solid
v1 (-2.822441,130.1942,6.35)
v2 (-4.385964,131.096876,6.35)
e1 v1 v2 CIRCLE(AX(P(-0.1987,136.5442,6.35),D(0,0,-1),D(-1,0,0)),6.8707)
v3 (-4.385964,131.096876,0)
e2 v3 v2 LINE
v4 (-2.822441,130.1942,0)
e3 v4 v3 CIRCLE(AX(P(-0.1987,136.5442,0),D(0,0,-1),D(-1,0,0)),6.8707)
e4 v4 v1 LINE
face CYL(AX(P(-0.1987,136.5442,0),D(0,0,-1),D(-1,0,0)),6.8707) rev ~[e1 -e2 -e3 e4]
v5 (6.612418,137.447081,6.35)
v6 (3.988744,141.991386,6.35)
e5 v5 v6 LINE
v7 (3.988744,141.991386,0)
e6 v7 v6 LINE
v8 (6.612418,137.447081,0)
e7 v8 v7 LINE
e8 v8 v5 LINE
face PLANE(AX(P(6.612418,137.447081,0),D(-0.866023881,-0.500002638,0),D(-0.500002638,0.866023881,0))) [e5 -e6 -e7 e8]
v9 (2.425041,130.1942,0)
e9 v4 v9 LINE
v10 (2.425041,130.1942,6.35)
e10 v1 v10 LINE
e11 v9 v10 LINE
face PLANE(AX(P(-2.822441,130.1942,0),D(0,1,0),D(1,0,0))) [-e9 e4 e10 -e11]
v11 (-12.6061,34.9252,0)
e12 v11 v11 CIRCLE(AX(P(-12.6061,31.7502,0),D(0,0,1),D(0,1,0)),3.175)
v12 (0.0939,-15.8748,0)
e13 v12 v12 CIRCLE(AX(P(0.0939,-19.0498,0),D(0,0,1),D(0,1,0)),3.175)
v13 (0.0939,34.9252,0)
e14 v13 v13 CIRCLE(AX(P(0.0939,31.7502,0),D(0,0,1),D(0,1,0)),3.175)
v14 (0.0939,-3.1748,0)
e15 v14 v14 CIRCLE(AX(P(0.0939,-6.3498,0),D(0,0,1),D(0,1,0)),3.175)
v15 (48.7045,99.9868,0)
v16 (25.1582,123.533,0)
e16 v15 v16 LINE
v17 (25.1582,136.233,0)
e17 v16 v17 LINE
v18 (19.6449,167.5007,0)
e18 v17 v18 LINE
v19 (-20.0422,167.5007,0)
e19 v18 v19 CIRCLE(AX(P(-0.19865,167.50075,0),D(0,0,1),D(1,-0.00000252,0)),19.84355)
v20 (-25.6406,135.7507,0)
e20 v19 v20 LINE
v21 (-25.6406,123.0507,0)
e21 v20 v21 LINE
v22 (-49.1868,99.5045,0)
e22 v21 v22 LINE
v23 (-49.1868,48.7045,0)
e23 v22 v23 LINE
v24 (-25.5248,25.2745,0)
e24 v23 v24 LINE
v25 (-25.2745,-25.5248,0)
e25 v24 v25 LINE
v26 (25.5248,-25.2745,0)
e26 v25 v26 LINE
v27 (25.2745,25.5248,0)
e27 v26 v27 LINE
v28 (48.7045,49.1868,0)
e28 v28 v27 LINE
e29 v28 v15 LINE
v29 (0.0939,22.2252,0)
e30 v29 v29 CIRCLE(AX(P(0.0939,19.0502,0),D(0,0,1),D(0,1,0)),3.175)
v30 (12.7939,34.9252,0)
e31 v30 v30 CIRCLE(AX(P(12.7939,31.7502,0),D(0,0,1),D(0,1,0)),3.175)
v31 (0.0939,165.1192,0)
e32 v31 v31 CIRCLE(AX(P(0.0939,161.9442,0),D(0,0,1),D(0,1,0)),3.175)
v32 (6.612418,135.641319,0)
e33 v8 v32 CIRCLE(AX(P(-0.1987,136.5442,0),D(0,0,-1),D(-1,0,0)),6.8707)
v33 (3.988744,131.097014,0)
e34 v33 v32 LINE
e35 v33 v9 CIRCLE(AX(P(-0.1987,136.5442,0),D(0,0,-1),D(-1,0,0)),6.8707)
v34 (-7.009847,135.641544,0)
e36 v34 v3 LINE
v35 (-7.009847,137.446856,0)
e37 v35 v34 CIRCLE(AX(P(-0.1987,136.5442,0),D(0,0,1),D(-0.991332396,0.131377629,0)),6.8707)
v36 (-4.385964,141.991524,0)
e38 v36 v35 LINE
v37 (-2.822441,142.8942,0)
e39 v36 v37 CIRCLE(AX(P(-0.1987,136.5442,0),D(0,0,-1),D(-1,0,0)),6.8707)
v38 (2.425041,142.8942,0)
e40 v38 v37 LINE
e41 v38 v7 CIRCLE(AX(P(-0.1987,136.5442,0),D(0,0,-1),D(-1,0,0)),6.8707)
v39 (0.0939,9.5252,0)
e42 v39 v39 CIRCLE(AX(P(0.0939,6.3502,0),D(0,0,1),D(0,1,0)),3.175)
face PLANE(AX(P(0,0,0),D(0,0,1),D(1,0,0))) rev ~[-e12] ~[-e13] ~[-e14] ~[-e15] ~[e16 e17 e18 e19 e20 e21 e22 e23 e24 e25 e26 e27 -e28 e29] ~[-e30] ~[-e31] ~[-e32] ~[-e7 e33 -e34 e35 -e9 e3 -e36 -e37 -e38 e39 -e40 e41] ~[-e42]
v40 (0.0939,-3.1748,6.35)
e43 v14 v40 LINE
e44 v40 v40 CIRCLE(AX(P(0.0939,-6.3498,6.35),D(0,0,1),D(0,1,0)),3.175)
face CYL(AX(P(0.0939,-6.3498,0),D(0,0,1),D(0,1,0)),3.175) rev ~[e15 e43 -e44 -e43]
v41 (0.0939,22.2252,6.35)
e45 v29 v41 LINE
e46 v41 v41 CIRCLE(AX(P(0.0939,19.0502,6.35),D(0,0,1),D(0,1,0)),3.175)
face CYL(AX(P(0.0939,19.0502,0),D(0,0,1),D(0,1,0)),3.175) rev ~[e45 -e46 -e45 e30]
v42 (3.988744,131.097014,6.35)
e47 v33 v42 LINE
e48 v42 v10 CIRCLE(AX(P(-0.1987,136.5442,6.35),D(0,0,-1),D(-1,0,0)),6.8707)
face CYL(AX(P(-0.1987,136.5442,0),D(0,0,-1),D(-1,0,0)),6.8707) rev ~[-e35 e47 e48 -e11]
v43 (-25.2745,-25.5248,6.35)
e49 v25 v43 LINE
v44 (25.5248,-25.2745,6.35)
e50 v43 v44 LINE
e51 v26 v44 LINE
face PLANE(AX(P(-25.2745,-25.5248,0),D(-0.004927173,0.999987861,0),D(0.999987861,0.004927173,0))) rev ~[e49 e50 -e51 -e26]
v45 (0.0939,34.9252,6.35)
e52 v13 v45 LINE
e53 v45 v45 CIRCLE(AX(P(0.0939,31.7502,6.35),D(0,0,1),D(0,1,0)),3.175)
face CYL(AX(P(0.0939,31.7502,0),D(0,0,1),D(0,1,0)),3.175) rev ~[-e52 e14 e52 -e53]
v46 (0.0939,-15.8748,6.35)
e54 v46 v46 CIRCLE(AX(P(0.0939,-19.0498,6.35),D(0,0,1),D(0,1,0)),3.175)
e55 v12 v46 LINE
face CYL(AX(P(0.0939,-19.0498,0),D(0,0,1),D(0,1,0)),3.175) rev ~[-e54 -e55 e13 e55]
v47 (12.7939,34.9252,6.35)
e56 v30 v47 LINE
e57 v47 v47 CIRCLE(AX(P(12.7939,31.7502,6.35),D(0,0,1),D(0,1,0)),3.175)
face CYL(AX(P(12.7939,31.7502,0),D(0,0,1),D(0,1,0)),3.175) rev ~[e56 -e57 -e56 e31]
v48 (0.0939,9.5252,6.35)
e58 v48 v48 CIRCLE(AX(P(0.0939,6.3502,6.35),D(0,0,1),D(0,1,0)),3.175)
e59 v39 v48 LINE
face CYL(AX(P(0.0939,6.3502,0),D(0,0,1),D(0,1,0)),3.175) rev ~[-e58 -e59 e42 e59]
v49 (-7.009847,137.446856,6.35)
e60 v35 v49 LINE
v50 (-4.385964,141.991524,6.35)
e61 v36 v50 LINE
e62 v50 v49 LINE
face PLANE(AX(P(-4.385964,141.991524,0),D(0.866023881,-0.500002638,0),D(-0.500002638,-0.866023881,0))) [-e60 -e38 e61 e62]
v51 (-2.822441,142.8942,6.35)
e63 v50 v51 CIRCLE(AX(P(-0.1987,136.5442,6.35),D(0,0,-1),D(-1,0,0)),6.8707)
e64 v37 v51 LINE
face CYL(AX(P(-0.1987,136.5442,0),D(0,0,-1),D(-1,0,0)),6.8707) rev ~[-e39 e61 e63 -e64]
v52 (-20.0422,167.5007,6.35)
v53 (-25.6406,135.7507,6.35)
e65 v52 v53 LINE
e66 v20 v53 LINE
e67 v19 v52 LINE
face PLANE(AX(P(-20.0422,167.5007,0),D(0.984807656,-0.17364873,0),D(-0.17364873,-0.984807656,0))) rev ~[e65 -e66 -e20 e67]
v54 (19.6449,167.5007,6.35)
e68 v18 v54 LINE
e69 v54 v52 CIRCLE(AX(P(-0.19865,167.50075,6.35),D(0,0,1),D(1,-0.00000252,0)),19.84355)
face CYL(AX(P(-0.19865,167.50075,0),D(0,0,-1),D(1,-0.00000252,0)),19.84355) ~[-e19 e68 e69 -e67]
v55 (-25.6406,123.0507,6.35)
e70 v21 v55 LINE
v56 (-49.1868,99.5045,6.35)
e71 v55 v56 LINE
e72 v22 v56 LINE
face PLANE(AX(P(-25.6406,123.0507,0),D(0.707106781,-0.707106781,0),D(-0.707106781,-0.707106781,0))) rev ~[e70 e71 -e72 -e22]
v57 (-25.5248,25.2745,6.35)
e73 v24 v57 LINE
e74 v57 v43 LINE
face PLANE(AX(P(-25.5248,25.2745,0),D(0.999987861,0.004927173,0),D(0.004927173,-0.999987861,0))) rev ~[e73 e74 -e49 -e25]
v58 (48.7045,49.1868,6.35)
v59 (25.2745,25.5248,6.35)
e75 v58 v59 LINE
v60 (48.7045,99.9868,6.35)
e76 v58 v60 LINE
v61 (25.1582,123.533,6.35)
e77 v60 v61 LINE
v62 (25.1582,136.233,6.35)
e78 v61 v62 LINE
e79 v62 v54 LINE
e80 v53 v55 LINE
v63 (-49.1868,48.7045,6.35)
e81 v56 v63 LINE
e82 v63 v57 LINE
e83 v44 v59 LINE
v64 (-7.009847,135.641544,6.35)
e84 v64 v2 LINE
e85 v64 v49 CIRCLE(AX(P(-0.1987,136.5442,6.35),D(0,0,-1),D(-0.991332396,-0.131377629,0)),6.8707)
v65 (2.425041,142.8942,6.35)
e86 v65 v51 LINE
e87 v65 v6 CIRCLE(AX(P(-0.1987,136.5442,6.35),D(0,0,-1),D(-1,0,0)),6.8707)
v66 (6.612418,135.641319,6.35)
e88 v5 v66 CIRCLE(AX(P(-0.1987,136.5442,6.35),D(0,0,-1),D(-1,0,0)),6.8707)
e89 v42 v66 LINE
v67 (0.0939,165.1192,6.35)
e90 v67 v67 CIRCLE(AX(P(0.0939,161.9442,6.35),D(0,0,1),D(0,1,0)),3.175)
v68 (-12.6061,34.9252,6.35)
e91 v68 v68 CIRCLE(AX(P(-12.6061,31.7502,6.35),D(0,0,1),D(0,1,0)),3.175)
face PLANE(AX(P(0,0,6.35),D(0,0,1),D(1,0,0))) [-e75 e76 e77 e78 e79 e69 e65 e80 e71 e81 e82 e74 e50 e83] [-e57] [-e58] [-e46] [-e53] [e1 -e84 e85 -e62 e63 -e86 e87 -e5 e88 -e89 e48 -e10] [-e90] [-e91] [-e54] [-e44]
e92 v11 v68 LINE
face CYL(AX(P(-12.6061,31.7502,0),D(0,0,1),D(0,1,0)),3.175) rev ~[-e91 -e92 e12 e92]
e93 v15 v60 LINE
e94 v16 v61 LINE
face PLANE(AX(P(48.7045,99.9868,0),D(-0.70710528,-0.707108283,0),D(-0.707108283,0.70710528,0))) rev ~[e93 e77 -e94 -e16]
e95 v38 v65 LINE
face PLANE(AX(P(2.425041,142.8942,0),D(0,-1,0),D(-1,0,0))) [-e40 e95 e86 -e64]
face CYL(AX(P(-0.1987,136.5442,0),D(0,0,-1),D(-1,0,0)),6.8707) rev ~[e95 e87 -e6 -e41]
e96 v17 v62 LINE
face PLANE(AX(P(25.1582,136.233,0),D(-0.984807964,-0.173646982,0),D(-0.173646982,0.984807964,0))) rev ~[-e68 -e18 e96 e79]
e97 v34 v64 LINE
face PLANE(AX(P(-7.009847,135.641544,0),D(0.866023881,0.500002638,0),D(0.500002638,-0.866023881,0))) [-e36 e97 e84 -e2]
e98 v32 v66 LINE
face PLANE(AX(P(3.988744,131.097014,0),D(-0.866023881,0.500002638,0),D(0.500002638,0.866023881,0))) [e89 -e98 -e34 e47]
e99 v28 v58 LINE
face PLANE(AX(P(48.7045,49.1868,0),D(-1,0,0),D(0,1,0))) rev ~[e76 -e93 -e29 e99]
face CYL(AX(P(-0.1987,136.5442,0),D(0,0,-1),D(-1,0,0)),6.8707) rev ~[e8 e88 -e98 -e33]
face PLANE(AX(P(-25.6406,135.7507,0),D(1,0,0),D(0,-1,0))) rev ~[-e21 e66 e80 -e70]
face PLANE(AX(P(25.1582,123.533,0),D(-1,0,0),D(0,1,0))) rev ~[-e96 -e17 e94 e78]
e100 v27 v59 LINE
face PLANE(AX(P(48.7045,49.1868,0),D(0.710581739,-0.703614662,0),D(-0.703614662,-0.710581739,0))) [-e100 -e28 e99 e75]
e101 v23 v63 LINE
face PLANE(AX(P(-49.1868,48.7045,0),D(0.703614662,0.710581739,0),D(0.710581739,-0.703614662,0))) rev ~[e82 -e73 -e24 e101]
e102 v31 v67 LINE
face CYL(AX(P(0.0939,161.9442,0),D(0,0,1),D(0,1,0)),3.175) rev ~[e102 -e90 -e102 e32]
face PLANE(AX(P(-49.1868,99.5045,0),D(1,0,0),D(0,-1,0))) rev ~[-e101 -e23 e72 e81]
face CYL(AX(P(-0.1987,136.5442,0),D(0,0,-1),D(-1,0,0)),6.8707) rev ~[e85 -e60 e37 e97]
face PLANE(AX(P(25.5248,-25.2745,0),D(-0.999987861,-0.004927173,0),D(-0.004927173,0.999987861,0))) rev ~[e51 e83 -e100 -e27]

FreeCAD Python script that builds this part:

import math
import FreeCAD as App
import Part
import Sketcher

V = App.Vector
Q = App.Units.Quantity

doc = App.newDocument("Part")
body = doc.addObject("PartDesign::Body", "Body")

# Sketch on XY plane
sketch1 = body.newObject("Sketcher::SketchObject", "Sketch")
sketch1.AttachmentSupport = (doc.getObject("XY_Plane"), [""])
sketch1.MapMode = "FlatFace"
sketch1.addGeometry([
    Part.LineSegment(V(-26, 25, 0), V(-25, -26, 0)),  # 0
    Part.LineSegment(V(-25, -26, 0), V(26, -25, 0)),  # 1
    Part.LineSegment(V(26, -25, 0), V(25, 26, 0)),  # 2
    Part.LineSegment(V(25, 26, 0), V(49, 49, 0)),  # 3
    Part.LineSegment(V(49, 49, 0), V(49, 100, 0)),  # 4
    Part.LineSegment(V(49, 100, 0), V(25, 124, 0)),  # 5
    Part.LineSegment(V(25, 124, 0), V(25, 136, 0)),  # 6
    Part.LineSegment(V(25, 136, 0), V(20, 168, 0)),  # 7
    Part.ArcOfCircle(Part.Circle(V(0, 168, 0), V(0, 0, 1), 20), math.radians(0), math.radians(180)),  # 8
    Part.LineSegment(V(-20, 168, 0), V(-26, 136, 0)),  # 9
    Part.LineSegment(V(-26, 136, 0), V(-26, 123, 0)),  # 10
    Part.LineSegment(V(-26, 123, 0), V(-49, 100, 0)),  # 11
    Part.LineSegment(V(-49, 100, 0), V(-49, 49, 0)),  # 12
    Part.LineSegment(V(-49, 49, 0), V(-26, 25, 0)),  # 13
], False)
sketch1.addConstraint([
    Sketcher.Constraint("Coincident", 0, 2, 1, 1),
    Sketcher.Constraint("Coincident", 1, 2, 2, 1),
    Sketcher.Constraint("Coincident", 2, 2, 3, 1),
    Sketcher.Constraint("Coincident", 3, 2, 4, 1),
    Sketcher.Constraint("Coincident", 4, 2, 5, 1),
    Sketcher.Constraint("Coincident", 5, 2, 6, 1),
    Sketcher.Constraint("Coincident", 6, 2, 7, 1),
    Sketcher.Constraint("Coincident", 7, 2, 8, 1),
    Sketcher.Constraint("Coincident", 8, 2, 9, 1),
    Sketcher.Constraint("Coincident", 9, 2, 10, 1),
    Sketcher.Constraint("Coincident", 10, 2, 11, 1),
    Sketcher.Constraint("Coincident", 11, 2, 12, 1),
    Sketcher.Constraint("Coincident", 12, 2, 13, 1),
    Sketcher.Constraint("Coincident", 13, 2, 0, 1),
    Sketcher.Constraint("Vertical", 4),
    Sketcher.Constraint("Vertical", 6),
    Sketcher.Constraint("Vertical", 10),
    Sketcher.Constraint("Vertical", 12),
    Sketcher.Constraint("Symmetric", 0, 2, 2, 2, -1, 1),
    Sketcher.Constraint("Symmetric", 1, 2, 13, 2, -1, 1),
    Sketcher.Constraint("Perpendicular", 0, 1),
    Sketcher.Constraint("Perpendicular", 5, 11),
    Sketcher.Constraint("Perpendicular", 3, 13),
    Sketcher.Constraint("Horizontal", 8, 3, 7, 2),
    Sketcher.Constraint("Horizontal", 7, 2, 8, 2),
    Sketcher.Constraint("Equal", 6, 10),
    Sketcher.Constraint("Equal", 4, 12),
    Sketcher.Constraint("Equal", 0, 1),
    Sketcher.Constraint("Equal", 3, 5),
    Sketcher.Constraint("Equal", 5, 11),
    Sketcher.Constraint("Equal", 11, 13),
    Sketcher.Constraint("DistanceY", 4, 1, 4, 2, Q("2 in")),
    Sketcher.Constraint("Distance", 0, Q("2 in")),
    Sketcher.Constraint("DistanceY", 6, 1, 6, 2, Q("0.5 in")),
    Sketcher.Constraint("Angle", 5, Q("135.0001 deg")),
    Sketcher.Constraint("Distance", 7, Q("1.25 in")),
    Sketcher.Constraint("DistanceY", 9, 2, 8, 2, Q("1.25 in")),
    Sketcher.Constraint("Distance", 3, Q("1.311 in")),
    Sketcher.Constraint("Angle", 7, Q("100 deg")),
    Sketcher.Constraint("Angle", 9, Q("-100 deg")),
    Sketcher.Constraint("DistanceY", 2, 2, 8, 3, Q("5.5896 in")),
])
pad1 = body.newObject("PartDesign::Pad", "Pad")
pad1.Profile = sketch1
pad1.Length = Q("0.25 in")

# Sketch on XY plane
sketch2 = body.newObject("Sketcher::SketchObject", "Sketch001")
sketch2.AttachmentSupport = (doc.getObject("XY_Plane"), [""])
sketch2.MapMode = "FlatFace"
sketch2.addGeometry([
    Part.Circle(V(0.1, -19, 0), V(0, 0, 1), 3.2),  # 0
    Part.Circle(V(0.1, -6.3, 0), V(0, 0, 1), 3.2),  # 1
    Part.Circle(V(0.1, 6.4, 0), V(0, 0, 1), 3.2),  # 2
    Part.Circle(V(0.1, 19.1, 0), V(0, 0, 1), 3.2),  # 3
    Part.Circle(V(0.1, 31.8, 0), V(0, 0, 1), 3.2),  # 4
    Part.Circle(V(-12.6, 31.8, 0), V(0, 0, 1), 3.2),  # 5
    Part.Circle(V(12.8, 31.8, 0), V(0, 0, 1), 3.2),  # 6
    Part.Circle(V(0.1, 161.9, 0), V(0, 0, 1), 3.2),  # 7
], False)
sketch2.addConstraint([
    Sketcher.Constraint("Equal", 0, 1),
    Sketcher.Constraint("Equal", 1, 2),
    Sketcher.Constraint("Equal", 2, 3),
    Sketcher.Constraint("Equal", 3, 4),
    Sketcher.Constraint("Equal", 4, 5),
    Sketcher.Constraint("Equal", 5, 6),
    Sketcher.Constraint("Equal", 6, 7),
    Sketcher.Constraint("Symmetric", 1, 3, 2, 3, -1),
    Sketcher.Constraint("Symmetric", 0, 3, 3, 3, -1),
    Sketcher.Constraint("Horizontal", 4, 3, 5, 3),
    Sketcher.Constraint("Horizontal", 5, 3, 6, 3),
    Sketcher.Constraint("Vertical", 0, 3, 1, 3),
    Sketcher.Constraint("Vertical", 3, 3, 4, 3),
    Sketcher.Constraint("Vertical", 4, 3, 7, 3),
    Sketcher.Constraint("Diameter", 0, Q("0.25 in")),
    Sketcher.Constraint("DistanceY", 0, 3, 2, 3, Q("1 in")),
    Sketcher.Constraint("DistanceY", 2, 3, 4, 3, Q("1 in")),
    Sketcher.Constraint("DistanceX", 5, 3, 6, 3, Q("1 in")),
    Sketcher.Constraint("DistanceY", 0, 3, 1, 3, Q("0.5 in")),
    Sketcher.Constraint("DistanceX", 5, 3, 4, 3, Q("0.5 in")),
    Sketcher.Constraint("DistanceX", -1, 1, 0, 3, Q("0.0037 in")),
    Sketcher.Constraint("DistanceY", -1, 1, 7, 3, Q("161.9442 mm")),
])
doc.recompute()
hole = body.newObject("PartDesign::Hole", "Hole")
hole.Profile = sketch2
hole.ThreadType = "None"
hole.Diameter = Q("0.25 in")
hole.DepthType = "ThroughAll"
hole.Reversed = True

# Sketch on XY plane
sketch3 = body.newObject("Sketcher::SketchObject", "Sketch002")
sketch3.AttachmentSupport = (doc.getObject("XY_Plane"), [""])
sketch3.MapMode = "FlatFace"
sketch3.addGeometry([
    Part.LineSegment(V(-7, 137.4, 0), V(-4.4, 142, 0)),  # 0
    Part.ArcOfCircle(Part.Circle(V(-0.2, 136.5, 0), V(0, 0, 1), 6.9), math.radians(112.45), math.radians(127.55)),  # 1
    Part.LineSegment(V(-2.8, 142.9, 0), V(2.4, 142.9, 0)),  # 2
    Part.ArcOfCircle(Part.Circle(V(-0.2, 136.5, 0), V(0, 0, 1), 6.9), math.radians(52.45), math.radians(67.55)),  # 3
    Part.LineSegment(V(4, 142, 0), V(6.6, 137.4, 0)),  # 4
    Part.ArcOfCircle(Part.Circle(V(-0.2, 136.5, 0), V(0, 0, 1), 6.9), math.radians(-7.55), math.radians(7.55)),  # 5
    Part.LineSegment(V(6.6, 135.6, 0), V(4, 131.1, 0)),  # 6
    Part.ArcOfCircle(Part.Circle(V(-0.2, 136.5, 0), V(0, 0, 1), 6.9), math.radians(-67.55), math.radians(-52.45)),  # 7
    Part.LineSegment(V(2.4, 130.2, 0), V(-2.8, 130.2, 0)),  # 8
    Part.ArcOfCircle(Part.Circle(V(-0.2, 136.5, 0), V(0, 0, 1), 6.9), math.radians(-127.55), math.radians(-112.45)),  # 9
    Part.LineSegment(V(-4.4, 131.1, 0), V(-7, 135.6, 0)),  # 10
    Part.ArcOfCircle(Part.Circle(V(-0.2, 136.5, 0), V(0, 0, 1), 6.9), math.radians(172.45), math.radians(187.55)),  # 11
], False)
sketch3.addConstraint([
    Sketcher.Constraint("Coincident", 0, 2, 1, 2),
    Sketcher.Constraint("Coincident", 1, 1, 2, 1),
    Sketcher.Constraint("Coincident", 2, 2, 3, 2),
    Sketcher.Constraint("Coincident", 3, 1, 4, 1),
    Sketcher.Constraint("Coincident", 4, 2, 5, 2),
    Sketcher.Constraint("Coincident", 5, 1, 6, 1),
    Sketcher.Constraint("Coincident", 6, 2, 7, 2),
    Sketcher.Constraint("Coincident", 7, 1, 8, 1),
    Sketcher.Constraint("Coincident", 8, 2, 9, 2),
    Sketcher.Constraint("Coincident", 9, 1, 10, 1),
    Sketcher.Constraint("Coincident", 10, 2, 11, 2),
    Sketcher.Constraint("Coincident", 11, 1, 0, 1),
    Sketcher.Constraint("Horizontal", 2),
    Sketcher.Constraint("Horizontal", 8),
    Sketcher.Constraint("Coincident", 3, 3, 1, 3),
    Sketcher.Constraint("Coincident", 5, 3, 1, 3),
    Sketcher.Constraint("Coincident", 7, 3, 1, 3),
    Sketcher.Constraint("Coincident", 9, 3, 1, 3),
    Sketcher.Constraint("Coincident", 11, 3, 1, 3),
    Sketcher.Constraint("Equal", 1, 3),
    Sketcher.Constraint("Equal", 3, 5),
    Sketcher.Constraint("Equal", 5, 7),
    Sketcher.Constraint("Equal", 7, 9),
    Sketcher.Constraint("Equal", 9, 11),
    Sketcher.Constraint("Parallel", 0, 6),
    Sketcher.Constraint("Parallel", 4, 10),
    Sketcher.Constraint("Horizontal", 0, 2, 3, 1),
    Sketcher.Constraint("Horizontal", 6, 2, 9, 1),
    Sketcher.Constraint("Vertical", 4, 2, 5, 1),
    Sketcher.Constraint("Vertical", 3, 1, 6, 2),
    Sketcher.Constraint("Vertical", 2, 2, 7, 1),
    Sketcher.Constraint("Radius", 1, Q("0.2705 in")),
    Sketcher.Constraint("DistanceY", 1, 3, 1, 1, Q("0.25 in")),
    Sketcher.Constraint("Angle", 0, Q("59.9998 deg")),
    Sketcher.Constraint("Distance", 0, Q("0.2066 in")),
    Sketcher.Constraint("DistanceY", -1, 1, 4, 2, Q("5.4113 in")),
    Sketcher.Constraint("DistanceX", 1, 3, -1, 1, Q("0.1987 mm")),
])
pocket1 = body.newObject("PartDesign::Pocket", "Pocket")
pocket1.Profile = sketch3
pocket1.Length = Q("0.25 in")
pocket1.Reversed = True

doc.recompute()
